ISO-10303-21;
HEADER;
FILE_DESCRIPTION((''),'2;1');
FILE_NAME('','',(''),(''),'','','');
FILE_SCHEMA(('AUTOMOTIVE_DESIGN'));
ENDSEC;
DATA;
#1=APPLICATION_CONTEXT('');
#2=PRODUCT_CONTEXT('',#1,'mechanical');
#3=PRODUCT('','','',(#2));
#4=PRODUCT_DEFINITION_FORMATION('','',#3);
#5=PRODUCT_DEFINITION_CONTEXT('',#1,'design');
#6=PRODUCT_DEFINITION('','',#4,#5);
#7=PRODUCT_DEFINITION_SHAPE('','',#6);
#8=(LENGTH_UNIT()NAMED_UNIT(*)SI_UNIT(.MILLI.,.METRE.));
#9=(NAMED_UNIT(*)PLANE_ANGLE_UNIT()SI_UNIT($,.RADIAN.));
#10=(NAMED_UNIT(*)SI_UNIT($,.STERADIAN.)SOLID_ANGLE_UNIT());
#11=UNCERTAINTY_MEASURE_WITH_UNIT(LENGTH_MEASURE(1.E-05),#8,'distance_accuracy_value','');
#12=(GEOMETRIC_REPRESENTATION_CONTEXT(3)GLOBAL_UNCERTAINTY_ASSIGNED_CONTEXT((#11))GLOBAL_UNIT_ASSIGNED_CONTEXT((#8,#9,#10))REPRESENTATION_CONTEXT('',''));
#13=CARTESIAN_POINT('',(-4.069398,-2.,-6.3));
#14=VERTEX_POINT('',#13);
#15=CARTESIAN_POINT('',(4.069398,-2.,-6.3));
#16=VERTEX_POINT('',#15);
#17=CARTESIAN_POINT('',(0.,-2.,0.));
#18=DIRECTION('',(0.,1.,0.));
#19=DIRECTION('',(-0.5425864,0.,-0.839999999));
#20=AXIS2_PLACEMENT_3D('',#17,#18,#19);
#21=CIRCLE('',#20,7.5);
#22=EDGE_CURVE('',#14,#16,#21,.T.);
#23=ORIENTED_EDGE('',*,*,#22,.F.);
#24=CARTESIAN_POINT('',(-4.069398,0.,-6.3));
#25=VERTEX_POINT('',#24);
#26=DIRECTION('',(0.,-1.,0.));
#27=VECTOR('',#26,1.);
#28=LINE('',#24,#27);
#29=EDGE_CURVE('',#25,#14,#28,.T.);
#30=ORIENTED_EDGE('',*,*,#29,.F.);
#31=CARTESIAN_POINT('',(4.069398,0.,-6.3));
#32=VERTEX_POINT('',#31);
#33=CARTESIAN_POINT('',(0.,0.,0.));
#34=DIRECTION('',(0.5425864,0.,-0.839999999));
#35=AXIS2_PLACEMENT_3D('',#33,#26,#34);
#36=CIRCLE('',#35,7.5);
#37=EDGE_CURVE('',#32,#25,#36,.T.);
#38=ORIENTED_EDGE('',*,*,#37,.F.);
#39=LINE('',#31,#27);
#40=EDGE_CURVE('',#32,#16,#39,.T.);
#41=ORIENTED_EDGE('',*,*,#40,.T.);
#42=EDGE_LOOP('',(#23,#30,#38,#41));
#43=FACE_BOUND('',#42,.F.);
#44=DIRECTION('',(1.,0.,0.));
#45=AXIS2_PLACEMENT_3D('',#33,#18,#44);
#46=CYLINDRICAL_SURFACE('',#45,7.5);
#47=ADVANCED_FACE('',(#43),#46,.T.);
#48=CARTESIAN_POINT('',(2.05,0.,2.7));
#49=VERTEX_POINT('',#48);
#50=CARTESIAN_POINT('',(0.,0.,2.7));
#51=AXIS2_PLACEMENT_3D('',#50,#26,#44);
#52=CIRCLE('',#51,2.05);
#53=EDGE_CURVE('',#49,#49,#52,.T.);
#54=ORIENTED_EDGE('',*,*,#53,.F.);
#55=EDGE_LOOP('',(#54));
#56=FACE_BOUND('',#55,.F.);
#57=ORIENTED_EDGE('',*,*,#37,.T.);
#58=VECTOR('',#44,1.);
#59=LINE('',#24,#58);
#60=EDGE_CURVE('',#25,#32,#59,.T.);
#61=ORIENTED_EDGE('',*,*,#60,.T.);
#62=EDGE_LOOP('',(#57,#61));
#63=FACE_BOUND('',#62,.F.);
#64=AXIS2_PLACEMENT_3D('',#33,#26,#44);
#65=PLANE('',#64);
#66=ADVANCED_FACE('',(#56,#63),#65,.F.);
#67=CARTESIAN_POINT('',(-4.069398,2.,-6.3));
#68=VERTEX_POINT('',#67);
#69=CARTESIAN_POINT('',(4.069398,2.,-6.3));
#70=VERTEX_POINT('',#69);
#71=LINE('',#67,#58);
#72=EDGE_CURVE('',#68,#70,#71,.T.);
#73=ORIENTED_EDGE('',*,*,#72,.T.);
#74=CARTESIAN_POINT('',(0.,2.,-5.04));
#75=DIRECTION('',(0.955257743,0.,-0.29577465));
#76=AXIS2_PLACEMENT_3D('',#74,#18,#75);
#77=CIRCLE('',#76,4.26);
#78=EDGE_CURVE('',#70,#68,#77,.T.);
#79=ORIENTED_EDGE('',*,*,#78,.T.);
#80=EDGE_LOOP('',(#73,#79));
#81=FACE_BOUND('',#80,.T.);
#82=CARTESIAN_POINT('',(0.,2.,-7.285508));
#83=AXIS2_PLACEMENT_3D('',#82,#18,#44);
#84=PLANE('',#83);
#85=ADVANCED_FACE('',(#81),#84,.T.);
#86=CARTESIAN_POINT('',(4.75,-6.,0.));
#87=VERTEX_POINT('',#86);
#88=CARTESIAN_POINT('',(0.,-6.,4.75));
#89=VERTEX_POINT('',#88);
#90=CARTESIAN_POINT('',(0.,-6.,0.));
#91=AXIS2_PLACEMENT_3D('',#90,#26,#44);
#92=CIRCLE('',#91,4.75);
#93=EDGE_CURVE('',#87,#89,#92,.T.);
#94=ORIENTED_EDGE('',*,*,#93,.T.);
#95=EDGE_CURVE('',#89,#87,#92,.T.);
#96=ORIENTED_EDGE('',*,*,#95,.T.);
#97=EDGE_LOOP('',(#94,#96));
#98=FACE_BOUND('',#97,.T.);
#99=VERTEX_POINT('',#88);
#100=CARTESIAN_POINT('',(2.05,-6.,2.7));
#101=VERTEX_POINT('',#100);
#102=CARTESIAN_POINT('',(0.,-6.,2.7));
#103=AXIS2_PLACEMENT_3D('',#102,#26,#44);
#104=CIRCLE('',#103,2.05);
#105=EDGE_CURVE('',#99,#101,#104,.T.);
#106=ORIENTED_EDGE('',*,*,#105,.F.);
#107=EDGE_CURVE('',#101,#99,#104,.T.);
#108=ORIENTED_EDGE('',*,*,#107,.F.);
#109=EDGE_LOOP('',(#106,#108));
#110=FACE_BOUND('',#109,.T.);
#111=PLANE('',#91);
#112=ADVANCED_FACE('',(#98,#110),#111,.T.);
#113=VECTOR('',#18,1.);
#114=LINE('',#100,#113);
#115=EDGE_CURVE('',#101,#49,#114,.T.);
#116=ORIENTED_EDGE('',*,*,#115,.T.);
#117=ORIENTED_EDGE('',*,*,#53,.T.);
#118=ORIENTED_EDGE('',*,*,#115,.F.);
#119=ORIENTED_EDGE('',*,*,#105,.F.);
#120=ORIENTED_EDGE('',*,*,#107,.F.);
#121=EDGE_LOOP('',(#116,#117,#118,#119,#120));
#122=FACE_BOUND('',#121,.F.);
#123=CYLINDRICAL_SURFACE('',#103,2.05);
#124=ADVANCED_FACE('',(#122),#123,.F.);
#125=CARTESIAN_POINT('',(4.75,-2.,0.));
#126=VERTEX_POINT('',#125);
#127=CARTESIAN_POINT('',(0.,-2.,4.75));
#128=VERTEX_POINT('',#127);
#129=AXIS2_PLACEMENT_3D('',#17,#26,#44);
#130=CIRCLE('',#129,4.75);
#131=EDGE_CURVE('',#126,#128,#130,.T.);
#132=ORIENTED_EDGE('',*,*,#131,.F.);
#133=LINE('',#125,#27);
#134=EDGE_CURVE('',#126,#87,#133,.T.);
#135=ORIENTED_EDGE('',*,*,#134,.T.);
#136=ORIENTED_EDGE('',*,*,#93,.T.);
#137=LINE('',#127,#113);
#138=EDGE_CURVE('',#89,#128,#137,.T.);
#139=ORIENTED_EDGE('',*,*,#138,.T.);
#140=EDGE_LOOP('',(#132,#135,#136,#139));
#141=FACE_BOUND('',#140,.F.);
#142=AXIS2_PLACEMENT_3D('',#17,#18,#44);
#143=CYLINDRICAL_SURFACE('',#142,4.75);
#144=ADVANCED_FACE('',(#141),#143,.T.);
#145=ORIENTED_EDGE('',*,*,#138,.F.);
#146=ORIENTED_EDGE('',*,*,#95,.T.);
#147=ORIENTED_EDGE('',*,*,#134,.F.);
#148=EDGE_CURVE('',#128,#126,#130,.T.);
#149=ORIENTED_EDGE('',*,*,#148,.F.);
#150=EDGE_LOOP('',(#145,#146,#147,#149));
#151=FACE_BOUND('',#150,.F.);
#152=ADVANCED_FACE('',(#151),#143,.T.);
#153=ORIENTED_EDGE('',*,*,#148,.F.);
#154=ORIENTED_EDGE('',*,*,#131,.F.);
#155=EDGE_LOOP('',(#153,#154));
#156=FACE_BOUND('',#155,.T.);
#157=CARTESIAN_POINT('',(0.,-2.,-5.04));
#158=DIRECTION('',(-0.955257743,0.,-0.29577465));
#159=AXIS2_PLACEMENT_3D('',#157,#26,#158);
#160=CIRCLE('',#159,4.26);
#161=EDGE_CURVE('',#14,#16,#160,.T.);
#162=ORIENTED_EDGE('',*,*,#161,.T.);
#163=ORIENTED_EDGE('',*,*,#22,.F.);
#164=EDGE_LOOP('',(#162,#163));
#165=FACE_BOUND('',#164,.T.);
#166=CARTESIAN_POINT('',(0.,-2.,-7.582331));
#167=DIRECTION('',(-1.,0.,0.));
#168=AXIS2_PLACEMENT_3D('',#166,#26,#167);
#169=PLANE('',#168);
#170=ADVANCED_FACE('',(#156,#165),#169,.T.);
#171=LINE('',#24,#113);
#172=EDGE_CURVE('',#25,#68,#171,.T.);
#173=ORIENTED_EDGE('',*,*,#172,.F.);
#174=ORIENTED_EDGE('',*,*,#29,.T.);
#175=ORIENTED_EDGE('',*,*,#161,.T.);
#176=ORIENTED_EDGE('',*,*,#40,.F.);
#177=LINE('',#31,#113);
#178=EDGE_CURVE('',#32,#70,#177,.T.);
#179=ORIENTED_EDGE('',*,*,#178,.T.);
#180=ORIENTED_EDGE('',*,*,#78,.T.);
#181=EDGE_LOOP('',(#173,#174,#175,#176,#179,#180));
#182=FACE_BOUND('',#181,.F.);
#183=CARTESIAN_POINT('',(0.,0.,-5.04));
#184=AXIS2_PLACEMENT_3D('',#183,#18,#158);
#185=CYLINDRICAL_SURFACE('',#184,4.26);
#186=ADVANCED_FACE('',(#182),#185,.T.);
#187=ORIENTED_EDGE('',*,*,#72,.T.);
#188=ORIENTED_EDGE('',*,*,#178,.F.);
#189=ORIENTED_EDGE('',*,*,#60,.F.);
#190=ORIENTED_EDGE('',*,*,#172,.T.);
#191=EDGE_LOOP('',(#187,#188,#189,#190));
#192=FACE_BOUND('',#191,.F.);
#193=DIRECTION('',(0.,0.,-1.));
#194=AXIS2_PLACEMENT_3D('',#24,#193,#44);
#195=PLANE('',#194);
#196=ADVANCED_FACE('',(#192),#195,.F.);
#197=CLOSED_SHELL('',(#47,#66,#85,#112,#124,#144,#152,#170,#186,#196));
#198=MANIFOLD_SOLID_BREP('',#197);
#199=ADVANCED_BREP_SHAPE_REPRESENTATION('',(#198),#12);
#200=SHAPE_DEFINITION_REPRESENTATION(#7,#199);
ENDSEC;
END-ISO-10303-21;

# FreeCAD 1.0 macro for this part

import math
import FreeCAD as App
import Part
import Sketcher

V = App.Vector

doc = App.newDocument("Part")
params = doc.addObject("Spreadsheet::Sheet", "Params")
for row, (alias, value) in enumerate([
    ("sketch1_diameter", "15 mm"),
    ("pad1_length", "2 mm"),
    ("sketch2_diameter", "9.5 mm"),
    ("pad2_length", "4 mm"),
    ("sketch3_diameter", "4.1 mm"),
    ("pocket1_length", "6 mm"),
    ("sketch4_radius", "4.26 mm"),
    ("pad3_length", "2 mm"),
    ("sketch5_radius", "7.5 mm"),
    ("sketch5_radius2", "4.26 mm"),
    ("pad4_length", "2 mm"),
], start=1):
    params.set(f"A{row}", alias)
    params.set(f"B{row}", "=" + value)
    params.setAlias(f"B{row}", alias)

body = doc.addObject("PartDesign::Body", "Body")

# Sketch on XZ plane
sketch1 = doc.addObject("Sketcher::SketchObject", "Sketch")
body.addObject(sketch1)
sketch1.AttachmentSupport = (doc.XZ_Plane, [""])
sketch1.MapMode = "FlatFace"
sketch1.addGeometry(Part.Circle(V(0, 0, 0), V(0, 0, 1), 8), False)
sketch1.addConstraint(Sketcher.Constraint("Coincident", 0, 3, -1, 1))
sketch1.addConstraint(Sketcher.Constraint("Diameter", 0, 15.0))
sketch1.setExpression("Constraints[1]", "Params.sketch1_diameter")
pad1 = doc.addObject("PartDesign::Pad", "Pad")
body.addObject(pad1)
pad1.Profile = sketch1
pad1.setExpression("Length", "Params.pad1_length")

# Sketch on XZ plane
sketch2 = doc.addObject("Sketcher::SketchObject", "Sketch001")
body.addObject(sketch2)
sketch2.AttachmentSupport = (doc.XZ_Plane, [""])
sketch2.MapMode = "FlatFace"
sketch2.AttachmentOffset = App.Placement(V(0, 0, 2), App.Rotation())
sketch2.addGeometry(Part.Circle(V(0, 0, 0), V(0, 0, 1), 4.8), False)
sketch2.addConstraint(Sketcher.Constraint("Coincident", 0, 3, -1, 1))
sketch2.addConstraint(Sketcher.Constraint("Diameter", 0, 9.5))
sketch2.setExpression("Constraints[1]", "Params.sketch2_diameter")
pad2 = doc.addObject("PartDesign::Pad", "Pad001")
body.addObject(pad2)
pad2.Profile = sketch2
pad2.setExpression("Length", "Params.pad2_length")

# Sketch on XZ plane
sketch3 = doc.addObject("Sketcher::SketchObject", "Sketch002")
body.addObject(sketch3)
sketch3.AttachmentSupport = (doc.XZ_Plane, [""])
sketch3.MapMode = "FlatFace"
sketch3.AttachmentOffset = App.Placement(V(0, 0, 6), App.Rotation())
sketch3.addGeometry(Part.Circle(V(0, 2.7, 0), V(0, 0, 1), 2), False)
sketch3.addConstraint(Sketcher.Constraint("PointOnObject", 0, 3, -2))
sketch3.addConstraint(Sketcher.Constraint("Diameter", 0, 4.1))
sketch3.addConstraint(Sketcher.Constraint("DistanceY", -1, 1, 0, 3, 2.7))
sketch3.setExpression("Constraints[1]", "Params.sketch3_diameter")
pocket1 = doc.addObject("PartDesign::Pocket", "Pocket")
body.addObject(pocket1)
pocket1.Profile = sketch3
pocket1.setExpression("Length", "Params.pocket1_length")

# Sketch on XZ plane
sketch4 = doc.addObject("Sketcher::SketchObject", "Sketch003")
body.addObject(sketch4)
sketch4.AttachmentSupport = (doc.XZ_Plane, [""])
sketch4.MapMode = "FlatFace"
sketch4.addGeometry(Part.LineSegment(V(-4.1, -6.3, 0), V(4.1, -6.3, 0)), False)
sketch4.addGeometry(Part.ArcOfCircle(Part.Circle(V(0, -5, 0), V(0, 0, 1), 4.3), math.radians(-163), math.radians(-17)), False)
sketch4.addConstraint(Sketcher.Constraint("Coincident", 0, 1, 1, 1))
sketch4.addConstraint(Sketcher.Constraint("Coincident", 1, 2, 0, 2))
sketch4.addConstraint(Sketcher.Constraint("Horizontal", 0))
sketch4.addConstraint(Sketcher.Constraint("PointOnObject", 1, 3, -2))
sketch4.addConstraint(Sketcher.Constraint("Radius", 1, 4.26))
sketch4.addConstraint(Sketcher.Constraint("DistanceY", 0, 1, -1, 1, 6.3))
sketch4.addConstraint(Sketcher.Constraint("DistanceY", 1, 3, -1, 1, 5.04))
sketch4.setExpression("Constraints[4]", "Params.sketch4_radius")
pad3 = doc.addObject("PartDesign::Pad", "Pad002")
body.addObject(pad3)
pad3.Profile = sketch4
pad3.setExpression("Length", "Params.pad3_length")
pad3.Reversed = True

# Sketch on XZ plane
sketch5 = doc.addObject("Sketcher::SketchObject", "Sketch004")
body.addObject(sketch5)
sketch5.AttachmentSupport = (doc.XZ_Plane, [""])
sketch5.MapMode = "FlatFace"
sketch5.addGeometry(Part.ArcOfCircle(Part.Circle(V(0, -5, 0), V(0, 0, 1), 4.3), math.radians(-163), math.radians(-17)), False)
sketch5.addGeometry(Part.ArcOfCircle(Part.Circle(V(0, 0, 0), V(0, 0, 1), 7.5), math.radians(-123), math.radians(-57)), False)
sketch5.addConstraint(Sketcher.Constraint("Coincident", 0, 1, 1, 1))
sketch5.addConstraint(Sketcher.Constraint("Coincident", 1, 2, 0, 2))
sketch5.addConstraint(Sketcher.Constraint("Coincident", 1, 3, -1, 1))
sketch5.addConstraint(Sketcher.Constraint("PointOnObject", 0, 3, -2))
sketch5.addConstraint(Sketcher.Constraint("Radius", 1, 7.5))
sketch5.addConstraint(Sketcher.Constraint("Radius", 0, 4.26))
sketch5.addConstraint(Sketcher.Constraint("DistanceY", 0, 1, -1, 1, 6.3))
sketch5.setExpression("Constraints[4]", "Params.sketch5_radius")
sketch5.setExpression("Constraints[5]", "Params.sketch5_radius2")
pad4 = doc.addObject("PartDesign::Pad", "Pad003")
body.addObject(pad4)
pad4.Profile = sketch5
pad4.setExpression("Length", "Params.pad4_length")

doc.recompute()
